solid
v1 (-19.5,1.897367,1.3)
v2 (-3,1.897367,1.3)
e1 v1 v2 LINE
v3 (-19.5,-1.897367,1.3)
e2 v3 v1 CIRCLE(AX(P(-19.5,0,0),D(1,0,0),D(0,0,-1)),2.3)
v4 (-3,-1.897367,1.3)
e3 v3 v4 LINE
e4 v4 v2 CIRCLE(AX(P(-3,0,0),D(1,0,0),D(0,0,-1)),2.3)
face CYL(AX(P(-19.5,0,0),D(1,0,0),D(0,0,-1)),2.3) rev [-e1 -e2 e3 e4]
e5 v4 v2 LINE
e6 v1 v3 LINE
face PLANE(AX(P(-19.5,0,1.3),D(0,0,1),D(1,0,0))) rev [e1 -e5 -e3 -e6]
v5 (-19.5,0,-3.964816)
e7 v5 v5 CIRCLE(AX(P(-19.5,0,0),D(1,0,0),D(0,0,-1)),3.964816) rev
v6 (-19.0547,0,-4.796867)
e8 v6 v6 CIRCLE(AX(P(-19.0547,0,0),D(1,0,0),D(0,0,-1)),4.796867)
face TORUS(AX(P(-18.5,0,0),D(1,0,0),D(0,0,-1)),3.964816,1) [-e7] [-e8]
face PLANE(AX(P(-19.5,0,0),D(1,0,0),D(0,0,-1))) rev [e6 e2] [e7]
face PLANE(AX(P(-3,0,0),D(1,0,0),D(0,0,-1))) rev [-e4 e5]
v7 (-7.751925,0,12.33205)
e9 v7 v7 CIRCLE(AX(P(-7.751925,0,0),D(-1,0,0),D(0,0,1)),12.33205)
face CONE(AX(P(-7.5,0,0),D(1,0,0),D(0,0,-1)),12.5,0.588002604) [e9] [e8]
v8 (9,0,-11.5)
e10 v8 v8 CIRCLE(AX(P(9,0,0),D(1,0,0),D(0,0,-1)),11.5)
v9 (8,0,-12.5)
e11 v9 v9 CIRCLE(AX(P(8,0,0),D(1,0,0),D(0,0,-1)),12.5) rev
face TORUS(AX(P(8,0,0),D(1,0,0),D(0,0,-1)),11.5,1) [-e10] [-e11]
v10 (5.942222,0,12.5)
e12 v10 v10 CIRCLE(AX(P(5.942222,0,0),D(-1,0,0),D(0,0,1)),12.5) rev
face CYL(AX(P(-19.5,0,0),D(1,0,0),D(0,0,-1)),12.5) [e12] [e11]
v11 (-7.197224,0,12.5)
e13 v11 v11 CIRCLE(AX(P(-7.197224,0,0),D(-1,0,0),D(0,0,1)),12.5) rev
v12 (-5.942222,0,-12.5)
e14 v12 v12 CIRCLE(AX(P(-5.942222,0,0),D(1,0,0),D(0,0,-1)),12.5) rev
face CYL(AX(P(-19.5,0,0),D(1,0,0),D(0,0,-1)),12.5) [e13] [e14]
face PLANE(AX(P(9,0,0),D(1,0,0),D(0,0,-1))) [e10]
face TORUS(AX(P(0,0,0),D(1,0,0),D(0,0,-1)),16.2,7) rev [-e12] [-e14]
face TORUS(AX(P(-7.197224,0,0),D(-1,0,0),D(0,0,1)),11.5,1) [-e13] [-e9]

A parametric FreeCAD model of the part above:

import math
import FreeCAD as App
import Part
import Sketcher

V = App.Vector
Q = App.Units.Quantity


def edges_at(feature, points):
    """Names of the edges that pass closest to the given points."""
    edges = feature.Shape.Edges
    near = lambda p: min(range(len(edges)), key=lambda i: edges[i].distToShape(Part.Vertex(*p))[0])
    return sorted({f"Edge{near(p) + 1}" for p in points})

doc = App.newDocument("Part")
params = doc.addObject("Spreadsheet::Sheet", "Params")
for row, (alias, value) in enumerate([
    ("sketch1_diameter", "25 mm"),
    ("sketch1_radius", "2.3 mm"),
    ("pad1_length", "9 mm"),
    ("pad1_length2", "19.5 mm"),
    ("sketch2_diameter", "14 mm"),
    ("groove_angle", "360 deg"),
    ("chamfer_size", "8 mm"),
    ("chamfer_size2", "12 mm"),
    ("fillet_radius", "1 mm"),
    ("fillet2_radius", "1 mm"),
    ("sketch3_radius", "2.3 mm"),
    ("pad2_length", "12 mm"),
], start=1):
    params.set(f"A{row}", alias)
    params.set(f"B{row}", "=" + value)
    params.setAlias(f"B{row}", alias)

body = doc.addObject("PartDesign::Body", "Body")

# Sketch on YZ plane
sketch1 = body.newObject("Sketcher::SketchObject", "Sketch")
sketch1.AttachmentSupport = (doc.getObject("YZ_Plane"), [""])
sketch1.MapMode = "FlatFace"
sketch1.addGeometry(Part.Circle(V(0, 0, 0), V(0, 0, 1), 12.5), False)
sketch1.addGeometry(Part.ArcOfCircle(Part.Circle(V(0, 0, 0), V(0, 0, 1), 2.3), math.radians(145.582611), math.radians(394.417389)), False)
sketch1.addGeometry(Part.LineSegment(V(-1.897367, 1.3, 0), V(1.897367, 1.3, 0)), False)
sketch1.addConstraint(Sketcher.Constraint("Coincident", 1, 1, 2, 1))
sketch1.addConstraint(Sketcher.Constraint("Coincident", 2, 2, 1, 2))
sketch1.addConstraint(Sketcher.Constraint("Horizontal", 2))
sketch1.addConstraint(Sketcher.Constraint("Coincident", 0, 3, -1, 1))
sketch1.addConstraint(Sketcher.Constraint("Coincident", 1, 3, -1, 1))
sketch1.addConstraint(Sketcher.Constraint("Diameter", 0, Q("25 mm")))
sketch1.addConstraint(Sketcher.Constraint("Radius", 1, Q("2.3 mm")))
sketch1.addConstraint(Sketcher.Constraint("DistanceY", -1, 1, 1, 1, Q("1.3 mm")))
sketch1.setExpression("Constraints[5]", "Params.sketch1_diameter")
sketch1.setExpression("Constraints[6]", "Params.sketch1_radius")
pad1 = body.newObject("PartDesign::Pad", "Pad")
pad1.Profile = sketch1
pad1.Type = "TwoLengths"
pad1.setExpression("Length", "Params.pad1_length")
pad1.setExpression("Length2", "Params.pad1_length2")

# Sketch on XZ plane
sketch2 = body.newObject("Sketcher::SketchObject", "Sketch001")
sketch2.AttachmentSupport = (doc.getObject("XZ_Plane"), [""])
sketch2.MapMode = "FlatFace"
sketch2.addGeometry(Part.Circle(V(0, 16.2, 0), V(0, 0, 1), 7), False)
sketch2.addConstraint(Sketcher.Constraint("PointOnObject", 0, 3, -2))
sketch2.addConstraint(Sketcher.Constraint("Diameter", 0, Q("14 mm")))
sketch2.addConstraint(Sketcher.Constraint("DistanceY", -1, 1, 0, 3, Q("16.2 mm")))
sketch2.setExpression("Constraints[1]", "Params.sketch2_diameter")
groove = body.newObject("PartDesign::Groove", "Groove")
groove.Profile = sketch2
groove.ReferenceAxis = (sketch2, ["H_Axis"])
groove.setExpression("Angle", "Params.groove_angle")
doc.recompute()

chamfer = body.newObject("PartDesign::Chamfer", "Chamfer")
chamfer.Base = (groove, edges_at(groove, [(-19.5, 0, 12.5)]))
chamfer.ChamferType = "Two distances"
chamfer.setExpression("Size", "Params.chamfer_size")
chamfer.setExpression("Size2", "Params.chamfer_size2")
chamfer.FlipDirection = True
doc.recompute()

fillet = body.newObject("PartDesign::Fillet", "Fillet")
fillet.Base = (chamfer, edges_at(chamfer, [(-7.5, 0, 12.5), (-19.5, 0, 4.5)]))
fillet.setExpression("Radius", "Params.fillet_radius")
doc.recompute()

fillet2 = body.newObject("PartDesign::Fillet", "Fillet001")
fillet2.Base = (fillet, edges_at(fillet, [(9, 0, 12.5)]))
fillet2.setExpression("Radius", "Params.fillet2_radius")

# Sketch on YZ plane
sketch3 = body.newObject("Sketcher::SketchObject", "Sketch002")
sketch3.AttachmentSupport = (doc.getObject("YZ_Plane"), [""])
sketch3.MapMode = "FlatFace"
sketch3.AttachmentOffset = App.Placement(V(0, 0, -3), App.Rotation())
sketch3.addGeometry(Part.ArcOfCircle(Part.Circle(V(0, 0, 0), V(0, 0, 1), 2.3), math.radians(0), math.radians(34.417389)), False)
sketch3.addGeometry(Part.ArcOfCircle(Part.Circle(V(0, 0, 0), V(0, 0, 1), 2.3), math.radians(34.417389), math.radians(145.582611)), False)
sketch3.addGeometry(Part.ArcOfCircle(Part.Circle(V(0, 0, 0), V(0, 0, 1), 2.3), math.radians(145.582611), math.radians(360)), False)
sketch3.addConstraint(Sketcher.Constraint("Tangent", 0, 2, 1, 1))
sketch3.addConstraint(Sketcher.Constraint("Tangent", 1, 2, 2, 1))
sketch3.addConstraint(Sketcher.Constraint("Tangent", 2, 2, 0, 1))
sketch3.addConstraint(Sketcher.Constraint("Coincident", 0, 3, -1, 1))
sketch3.addConstraint(Sketcher.Constraint("PointOnObject", 2, 2, -1))
sketch3.addConstraint(Sketcher.Constraint("Horizontal", 0, 2, 1, 2))
sketch3.addConstraint(Sketcher.Constraint("Radius", 0, Q("2.3 mm")))
sketch3.addConstraint(Sketcher.Constraint("DistanceY", -1, 1, 0, 2, Q("1.3 mm")))
sketch3.setExpression("Constraints[6]", "Params.sketch3_radius")
pad2 = body.newObject("PartDesign::Pad", "Pad001")
pad2.Profile = sketch3
pad2.setExpression("Length", "Params.pad2_length")

doc.recompute()
